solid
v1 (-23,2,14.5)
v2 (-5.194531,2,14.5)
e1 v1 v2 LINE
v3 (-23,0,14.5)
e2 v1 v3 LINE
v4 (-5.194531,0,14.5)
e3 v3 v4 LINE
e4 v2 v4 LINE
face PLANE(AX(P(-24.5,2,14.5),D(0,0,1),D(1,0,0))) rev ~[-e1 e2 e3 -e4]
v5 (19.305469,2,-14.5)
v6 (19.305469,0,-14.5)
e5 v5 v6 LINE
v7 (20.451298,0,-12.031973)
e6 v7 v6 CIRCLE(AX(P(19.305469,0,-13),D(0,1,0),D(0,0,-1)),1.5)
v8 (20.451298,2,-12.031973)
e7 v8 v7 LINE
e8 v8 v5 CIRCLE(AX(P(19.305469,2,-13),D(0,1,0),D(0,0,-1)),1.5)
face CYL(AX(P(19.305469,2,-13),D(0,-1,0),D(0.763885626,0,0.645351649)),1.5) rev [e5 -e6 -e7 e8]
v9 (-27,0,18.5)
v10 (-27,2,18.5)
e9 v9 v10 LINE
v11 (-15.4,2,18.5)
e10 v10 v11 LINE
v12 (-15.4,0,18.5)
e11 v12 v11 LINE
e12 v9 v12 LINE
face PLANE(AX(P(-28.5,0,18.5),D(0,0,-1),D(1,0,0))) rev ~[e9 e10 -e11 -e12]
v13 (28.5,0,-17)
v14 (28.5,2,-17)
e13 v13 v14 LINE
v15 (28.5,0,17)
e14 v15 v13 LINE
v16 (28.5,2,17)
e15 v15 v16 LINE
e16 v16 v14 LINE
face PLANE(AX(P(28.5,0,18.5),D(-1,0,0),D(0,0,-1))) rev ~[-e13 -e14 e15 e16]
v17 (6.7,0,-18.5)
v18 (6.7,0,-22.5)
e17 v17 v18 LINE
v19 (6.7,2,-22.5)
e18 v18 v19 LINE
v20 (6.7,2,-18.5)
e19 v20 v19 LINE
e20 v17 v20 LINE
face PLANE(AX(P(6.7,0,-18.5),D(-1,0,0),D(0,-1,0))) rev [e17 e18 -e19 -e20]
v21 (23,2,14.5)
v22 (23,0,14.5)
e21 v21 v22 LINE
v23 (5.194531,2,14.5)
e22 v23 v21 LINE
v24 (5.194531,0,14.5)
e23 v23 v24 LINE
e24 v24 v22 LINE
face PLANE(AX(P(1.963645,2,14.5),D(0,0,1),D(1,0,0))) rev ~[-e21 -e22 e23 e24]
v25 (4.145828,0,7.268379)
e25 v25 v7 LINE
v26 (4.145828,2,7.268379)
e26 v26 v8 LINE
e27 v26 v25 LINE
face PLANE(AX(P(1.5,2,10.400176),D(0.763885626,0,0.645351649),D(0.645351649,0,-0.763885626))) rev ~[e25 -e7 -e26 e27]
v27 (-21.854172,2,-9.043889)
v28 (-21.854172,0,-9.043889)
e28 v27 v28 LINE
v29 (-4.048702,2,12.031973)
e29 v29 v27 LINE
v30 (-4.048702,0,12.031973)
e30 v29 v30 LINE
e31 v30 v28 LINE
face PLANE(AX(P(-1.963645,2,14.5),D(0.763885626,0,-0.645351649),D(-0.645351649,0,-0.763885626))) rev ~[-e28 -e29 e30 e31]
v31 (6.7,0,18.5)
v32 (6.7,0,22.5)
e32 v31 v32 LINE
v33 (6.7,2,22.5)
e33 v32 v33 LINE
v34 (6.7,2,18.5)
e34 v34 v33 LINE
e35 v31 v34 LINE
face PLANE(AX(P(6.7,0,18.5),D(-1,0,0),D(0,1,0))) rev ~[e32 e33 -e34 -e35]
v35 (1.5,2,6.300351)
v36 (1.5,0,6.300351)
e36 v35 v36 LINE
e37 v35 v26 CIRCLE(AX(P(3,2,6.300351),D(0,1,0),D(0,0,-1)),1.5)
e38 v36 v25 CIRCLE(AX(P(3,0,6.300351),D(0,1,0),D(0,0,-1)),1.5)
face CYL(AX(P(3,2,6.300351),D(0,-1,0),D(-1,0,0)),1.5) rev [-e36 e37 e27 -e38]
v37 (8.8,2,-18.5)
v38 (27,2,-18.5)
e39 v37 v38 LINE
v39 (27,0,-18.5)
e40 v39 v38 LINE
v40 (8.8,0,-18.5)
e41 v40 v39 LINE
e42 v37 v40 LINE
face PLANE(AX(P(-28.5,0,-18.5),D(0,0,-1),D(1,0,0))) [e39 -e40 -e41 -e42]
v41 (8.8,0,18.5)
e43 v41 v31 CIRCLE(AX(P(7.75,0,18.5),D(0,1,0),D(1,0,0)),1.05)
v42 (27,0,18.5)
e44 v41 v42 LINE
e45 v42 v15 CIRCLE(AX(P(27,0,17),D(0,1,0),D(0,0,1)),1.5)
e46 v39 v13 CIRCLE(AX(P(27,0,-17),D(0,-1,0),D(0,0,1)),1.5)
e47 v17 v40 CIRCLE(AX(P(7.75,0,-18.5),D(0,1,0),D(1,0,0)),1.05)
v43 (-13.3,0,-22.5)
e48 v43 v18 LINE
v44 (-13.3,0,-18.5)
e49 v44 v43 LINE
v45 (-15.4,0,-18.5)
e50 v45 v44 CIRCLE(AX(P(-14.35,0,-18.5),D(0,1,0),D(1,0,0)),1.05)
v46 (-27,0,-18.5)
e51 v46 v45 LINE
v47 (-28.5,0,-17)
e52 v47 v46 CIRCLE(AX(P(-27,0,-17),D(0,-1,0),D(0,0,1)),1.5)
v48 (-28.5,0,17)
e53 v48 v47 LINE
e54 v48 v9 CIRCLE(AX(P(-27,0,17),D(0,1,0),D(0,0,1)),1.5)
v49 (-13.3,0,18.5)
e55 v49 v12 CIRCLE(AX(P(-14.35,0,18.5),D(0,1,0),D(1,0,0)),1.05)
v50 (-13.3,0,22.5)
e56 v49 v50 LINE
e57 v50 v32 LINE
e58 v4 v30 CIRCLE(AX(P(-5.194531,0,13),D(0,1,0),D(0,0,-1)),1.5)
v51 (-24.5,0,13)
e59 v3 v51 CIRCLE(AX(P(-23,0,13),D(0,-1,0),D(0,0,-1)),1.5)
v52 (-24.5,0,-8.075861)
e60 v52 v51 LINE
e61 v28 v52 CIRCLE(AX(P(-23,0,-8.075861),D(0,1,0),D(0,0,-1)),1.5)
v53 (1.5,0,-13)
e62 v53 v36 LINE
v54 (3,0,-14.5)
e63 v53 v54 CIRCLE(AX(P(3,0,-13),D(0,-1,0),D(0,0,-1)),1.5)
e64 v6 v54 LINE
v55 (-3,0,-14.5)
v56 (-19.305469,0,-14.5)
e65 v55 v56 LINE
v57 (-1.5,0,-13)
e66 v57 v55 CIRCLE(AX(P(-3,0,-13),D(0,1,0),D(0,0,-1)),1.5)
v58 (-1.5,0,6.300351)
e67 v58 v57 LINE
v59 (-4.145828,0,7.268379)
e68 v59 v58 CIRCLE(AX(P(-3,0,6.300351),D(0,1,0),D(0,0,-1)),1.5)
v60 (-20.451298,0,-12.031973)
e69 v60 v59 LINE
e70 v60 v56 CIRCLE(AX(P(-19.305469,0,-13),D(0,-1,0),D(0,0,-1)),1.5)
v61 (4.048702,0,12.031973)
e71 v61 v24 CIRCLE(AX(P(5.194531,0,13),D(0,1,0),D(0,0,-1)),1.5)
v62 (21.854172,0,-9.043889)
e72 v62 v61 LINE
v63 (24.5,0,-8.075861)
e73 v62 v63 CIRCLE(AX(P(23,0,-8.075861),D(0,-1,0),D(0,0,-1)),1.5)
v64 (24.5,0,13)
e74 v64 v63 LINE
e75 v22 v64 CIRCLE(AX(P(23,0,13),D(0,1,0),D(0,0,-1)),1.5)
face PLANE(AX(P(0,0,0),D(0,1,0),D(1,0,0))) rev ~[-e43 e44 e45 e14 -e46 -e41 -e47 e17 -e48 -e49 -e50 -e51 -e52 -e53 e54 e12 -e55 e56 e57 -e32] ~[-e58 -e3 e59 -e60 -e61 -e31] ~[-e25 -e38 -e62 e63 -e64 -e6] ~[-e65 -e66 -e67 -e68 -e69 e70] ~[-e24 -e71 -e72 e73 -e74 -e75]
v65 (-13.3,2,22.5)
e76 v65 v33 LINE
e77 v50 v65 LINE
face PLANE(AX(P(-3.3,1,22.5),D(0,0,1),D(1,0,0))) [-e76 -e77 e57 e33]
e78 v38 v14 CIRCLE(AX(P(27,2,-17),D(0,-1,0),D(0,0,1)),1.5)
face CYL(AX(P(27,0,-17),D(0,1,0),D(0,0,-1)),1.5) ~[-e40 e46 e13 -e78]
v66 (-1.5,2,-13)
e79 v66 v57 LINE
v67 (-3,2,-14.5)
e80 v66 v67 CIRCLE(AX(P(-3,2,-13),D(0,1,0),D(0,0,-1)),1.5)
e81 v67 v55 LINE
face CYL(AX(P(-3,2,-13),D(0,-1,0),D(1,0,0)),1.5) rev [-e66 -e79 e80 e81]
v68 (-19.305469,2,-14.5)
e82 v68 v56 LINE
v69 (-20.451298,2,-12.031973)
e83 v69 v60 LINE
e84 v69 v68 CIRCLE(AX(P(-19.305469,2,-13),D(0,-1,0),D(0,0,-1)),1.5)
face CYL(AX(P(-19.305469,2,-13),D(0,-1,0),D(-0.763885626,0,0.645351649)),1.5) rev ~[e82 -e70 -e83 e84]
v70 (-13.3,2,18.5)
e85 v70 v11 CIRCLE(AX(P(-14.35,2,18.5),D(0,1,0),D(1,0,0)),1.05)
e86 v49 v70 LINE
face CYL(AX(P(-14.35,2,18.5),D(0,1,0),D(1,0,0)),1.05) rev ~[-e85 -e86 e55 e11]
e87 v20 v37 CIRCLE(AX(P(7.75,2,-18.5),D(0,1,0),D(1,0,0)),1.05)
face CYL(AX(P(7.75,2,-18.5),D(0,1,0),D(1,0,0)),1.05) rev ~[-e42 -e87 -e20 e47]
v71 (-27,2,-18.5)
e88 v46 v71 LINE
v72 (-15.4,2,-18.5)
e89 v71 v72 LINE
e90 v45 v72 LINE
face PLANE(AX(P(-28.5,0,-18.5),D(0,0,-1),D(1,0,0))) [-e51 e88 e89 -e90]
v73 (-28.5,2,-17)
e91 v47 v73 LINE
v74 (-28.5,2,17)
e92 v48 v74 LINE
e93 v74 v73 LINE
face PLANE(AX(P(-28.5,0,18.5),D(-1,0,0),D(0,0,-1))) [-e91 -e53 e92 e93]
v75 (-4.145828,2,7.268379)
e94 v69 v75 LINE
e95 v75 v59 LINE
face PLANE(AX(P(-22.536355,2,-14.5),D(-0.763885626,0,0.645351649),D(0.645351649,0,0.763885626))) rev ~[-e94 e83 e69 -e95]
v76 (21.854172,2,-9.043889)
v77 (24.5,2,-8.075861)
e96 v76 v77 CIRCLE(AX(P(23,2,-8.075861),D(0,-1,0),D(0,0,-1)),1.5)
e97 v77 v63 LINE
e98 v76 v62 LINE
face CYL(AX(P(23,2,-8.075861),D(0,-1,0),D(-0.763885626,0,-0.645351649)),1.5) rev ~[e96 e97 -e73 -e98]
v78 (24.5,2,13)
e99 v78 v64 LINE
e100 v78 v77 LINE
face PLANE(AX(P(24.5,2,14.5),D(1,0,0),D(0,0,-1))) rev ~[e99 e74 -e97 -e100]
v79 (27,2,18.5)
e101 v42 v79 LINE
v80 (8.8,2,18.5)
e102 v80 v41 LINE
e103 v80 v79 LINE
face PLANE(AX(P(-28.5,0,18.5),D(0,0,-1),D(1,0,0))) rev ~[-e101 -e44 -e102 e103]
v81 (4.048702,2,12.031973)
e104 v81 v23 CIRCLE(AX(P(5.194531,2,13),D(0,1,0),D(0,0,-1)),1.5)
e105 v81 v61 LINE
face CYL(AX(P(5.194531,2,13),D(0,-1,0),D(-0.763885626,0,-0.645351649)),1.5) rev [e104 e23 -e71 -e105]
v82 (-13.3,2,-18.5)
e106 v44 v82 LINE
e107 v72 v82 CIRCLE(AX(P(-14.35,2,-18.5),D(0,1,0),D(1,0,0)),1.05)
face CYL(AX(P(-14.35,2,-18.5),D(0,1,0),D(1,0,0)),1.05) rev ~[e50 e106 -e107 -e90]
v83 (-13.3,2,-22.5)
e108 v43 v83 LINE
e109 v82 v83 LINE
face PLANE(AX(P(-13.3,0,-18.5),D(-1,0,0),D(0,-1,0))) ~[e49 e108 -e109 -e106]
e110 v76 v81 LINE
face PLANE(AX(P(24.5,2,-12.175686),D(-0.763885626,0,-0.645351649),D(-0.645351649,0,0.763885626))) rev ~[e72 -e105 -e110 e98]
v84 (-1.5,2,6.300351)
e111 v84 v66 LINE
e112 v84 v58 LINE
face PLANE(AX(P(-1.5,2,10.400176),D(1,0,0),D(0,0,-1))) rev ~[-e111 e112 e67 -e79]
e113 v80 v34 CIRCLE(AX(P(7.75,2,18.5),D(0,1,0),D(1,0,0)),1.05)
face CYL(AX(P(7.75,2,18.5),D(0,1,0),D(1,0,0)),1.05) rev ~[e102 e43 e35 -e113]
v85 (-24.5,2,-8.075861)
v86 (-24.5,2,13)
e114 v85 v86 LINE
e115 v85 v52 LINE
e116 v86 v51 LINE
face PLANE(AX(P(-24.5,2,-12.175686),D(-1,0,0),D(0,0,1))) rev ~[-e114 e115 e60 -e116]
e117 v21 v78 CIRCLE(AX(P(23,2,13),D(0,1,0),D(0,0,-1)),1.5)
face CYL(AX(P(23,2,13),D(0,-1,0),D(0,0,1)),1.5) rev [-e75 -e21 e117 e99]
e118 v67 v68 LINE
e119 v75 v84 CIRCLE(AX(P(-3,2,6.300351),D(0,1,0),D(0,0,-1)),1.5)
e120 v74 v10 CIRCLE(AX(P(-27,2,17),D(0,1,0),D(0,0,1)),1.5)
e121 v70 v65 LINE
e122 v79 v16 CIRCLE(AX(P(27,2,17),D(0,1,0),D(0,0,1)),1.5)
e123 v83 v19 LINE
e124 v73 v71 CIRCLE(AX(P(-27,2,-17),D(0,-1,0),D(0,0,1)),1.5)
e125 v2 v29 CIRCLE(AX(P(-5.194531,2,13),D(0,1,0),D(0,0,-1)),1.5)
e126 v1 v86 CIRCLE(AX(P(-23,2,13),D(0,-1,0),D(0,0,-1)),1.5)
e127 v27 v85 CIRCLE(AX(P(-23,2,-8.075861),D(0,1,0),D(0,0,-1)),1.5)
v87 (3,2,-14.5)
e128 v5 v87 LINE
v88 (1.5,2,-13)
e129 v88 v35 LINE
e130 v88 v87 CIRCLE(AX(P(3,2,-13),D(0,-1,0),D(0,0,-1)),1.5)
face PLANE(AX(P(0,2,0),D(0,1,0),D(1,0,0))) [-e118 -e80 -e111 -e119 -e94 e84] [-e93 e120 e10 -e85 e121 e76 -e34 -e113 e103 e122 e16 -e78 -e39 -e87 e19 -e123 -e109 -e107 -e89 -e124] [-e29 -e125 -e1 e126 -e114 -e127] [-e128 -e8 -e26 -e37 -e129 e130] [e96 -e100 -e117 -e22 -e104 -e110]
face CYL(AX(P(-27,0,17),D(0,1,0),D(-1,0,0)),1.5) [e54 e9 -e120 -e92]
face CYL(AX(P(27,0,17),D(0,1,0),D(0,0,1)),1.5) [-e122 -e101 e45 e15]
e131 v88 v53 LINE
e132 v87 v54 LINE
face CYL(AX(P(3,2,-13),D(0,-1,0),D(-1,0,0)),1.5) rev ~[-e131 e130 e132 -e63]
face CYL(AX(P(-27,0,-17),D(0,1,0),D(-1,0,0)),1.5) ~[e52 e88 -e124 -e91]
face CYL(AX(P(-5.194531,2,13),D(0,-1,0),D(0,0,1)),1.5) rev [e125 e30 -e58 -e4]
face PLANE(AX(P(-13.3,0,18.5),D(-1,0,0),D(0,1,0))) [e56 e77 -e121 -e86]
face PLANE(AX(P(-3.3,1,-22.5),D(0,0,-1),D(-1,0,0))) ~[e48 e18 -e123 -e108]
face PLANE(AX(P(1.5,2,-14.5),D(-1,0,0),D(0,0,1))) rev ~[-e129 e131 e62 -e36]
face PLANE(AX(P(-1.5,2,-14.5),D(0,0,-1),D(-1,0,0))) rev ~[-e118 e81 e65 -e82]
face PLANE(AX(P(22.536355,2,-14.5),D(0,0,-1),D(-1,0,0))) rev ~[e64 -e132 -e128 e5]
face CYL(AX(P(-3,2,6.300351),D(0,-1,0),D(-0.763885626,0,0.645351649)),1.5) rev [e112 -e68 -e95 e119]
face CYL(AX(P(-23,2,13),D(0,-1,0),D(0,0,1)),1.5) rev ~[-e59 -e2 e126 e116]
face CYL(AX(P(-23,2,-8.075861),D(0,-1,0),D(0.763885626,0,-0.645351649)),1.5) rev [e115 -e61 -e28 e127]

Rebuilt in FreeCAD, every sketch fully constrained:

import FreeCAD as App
import Part
import Sketcher
from FreeCAD import Vector


def edges_at(feature, points):
    """Names of the edges that pass closest to the given points."""
    edges = feature.Shape.Edges
    near = lambda p: min(range(len(edges)), key=lambda i: edges[i].distToShape(Part.Vertex(*p))[0])
    return sorted({f"Edge{near(p) + 1}" for p in points})


def add_polygon(sketch, points):
    """Adds a closed chain of lines whose ends are joined by coincident constraints."""
    first, n = sketch.GeometryCount, len(points)
    for a, b in zip(points, points[1:] + points[:1]):
        sketch.addGeometry(Part.LineSegment(App.Vector(*a, 0), App.Vector(*b, 0)), False)
    for i in range(n):
        sketch.addConstraint(Sketcher.Constraint("Coincident", first + i, 2, first + (i + 1) % n, 1))

doc = App.newDocument("Part")
body = doc.addObject("PartDesign::Body", "Body")

# Sketch on XZ plane
sketch1 = body.newObject("Sketcher::SketchObject", "Sketch")
sketch1.AttachmentSupport = (doc.getObject("XZ_Plane"), [""])
sketch1.MapMode = "FlatFace"
add_polygon(sketch1, [(-28, -18), (-28, 18), (28, 18), (28, -18)])  # lines 0-3
sketch1.addConstraint(Sketcher.Constraint("Vertical", 0))
sketch1.addConstraint(Sketcher.Constraint("Horizontal", 1))
sketch1.addConstraint(Sketcher.Constraint("Vertical", 2))
sketch1.addConstraint(Sketcher.Constraint("Horizontal", 3))
sketch1.addConstraint(Sketcher.Constraint("Symmetric", 0, 2, 2, 2, -1, 1))
sketch1.addConstraint(Sketcher.Constraint("DistanceX", 1, 1, 1, 2, 57.0))
sketch1.addConstraint(Sketcher.Constraint("DistanceY", 0, 1, 0, 2, 37.0))
pad1 = body.newObject("PartDesign::Pad", "Pad")
pad1.Profile = sketch1
pad1.Length = 2
pad1.Reversed = True

# Sketch on XY plane
sketch2 = body.newObject("Sketcher::SketchObject", "Sketch001")
sketch2.AttachmentSupport = (doc.getObject("XY_Plane"), [""])
sketch2.MapMode = "FlatFace"
sketch2.AttachmentOffset = App.Placement(Vector(0, 0, 18.5), App.Rotation())
add_polygon(sketch2, [(-13.3, 2), (-13.3, 0), (6.7, 0), (6.7, 2)])  # lines 0-3
sketch2.addConstraint(Sketcher.Constraint("Vertical", 0))
sketch2.addConstraint(Sketcher.Constraint("Horizontal", 1))
sketch2.addConstraint(Sketcher.Constraint("Vertical", 2))
sketch2.addConstraint(Sketcher.Constraint("Horizontal", 3))
sketch2.addConstraint(Sketcher.Constraint("PointOnObject", 0, 2, -1))
sketch2.addConstraint(Sketcher.Constraint("DistanceX", 1, 1, 1, 2, 20.0))
sketch2.addConstraint(Sketcher.Constraint("DistanceY", 0, 2, 0, 1, 2.0))
sketch2.addConstraint(Sketcher.Constraint("DistanceX", 0, 2, -1, 1, 13.3))
pad2 = body.newObject("PartDesign::Pad", "Pad001")
pad2.Profile = sketch2
pad2.Length = 4
doc.recompute()

mirrored = body.newObject("PartDesign::Mirrored", "Mirrored")
mirrored.Originals = [pad2]
mirrored.MirrorPlane = (doc.getObject("XY_Plane"), [""])
body.Tip = mirrored

# Sketch on XZ plane
sketch3 = body.newObject("Sketcher::SketchObject", "Sketch002")
sketch3.AttachmentSupport = (doc.getObject("XZ_Plane"), [""])
sketch3.MapMode = "FlatFace"
sketch3.AttachmentOffset = App.Placement(Vector(0, 0, -2), App.Rotation())
sketch3.addGeometry(Part.Circle(Vector(7.8, -18.5, 0), Vector(0, 0, 1), 1.1), False)
sketch3.addGeometry(Part.Circle(Vector(-14.3, -18.5, 0), Vector(0, 0, 1), 1.1), False)
sketch3.addGeometry(Part.Circle(Vector(-14.3, 18.5, 0), Vector(0, 0, 1), 1.1), False)
sketch3.addGeometry(Part.Circle(Vector(7.8, 18.5, 0), Vector(0, 0, 1), 1.1), False)
sketch3.addConstraint(Sketcher.Constraint("Equal", 0, 1))
sketch3.addConstraint(Sketcher.Constraint("Equal", 1, 2))
sketch3.addConstraint(Sketcher.Constraint("Equal", 2, 3))
sketch3.addConstraint(Sketcher.Constraint("Symmetric", 1, 3, 2, 3, -1))
sketch3.addConstraint(Sketcher.Constraint("Symmetric", 0, 3, 3, 3, -1))
sketch3.addConstraint(Sketcher.Constraint("Horizontal", 0, 3, 1, 3))
sketch3.addConstraint(Sketcher.Constraint("Diameter", 0, 2.1))
sketch3.addConstraint(Sketcher.Constraint("DistanceY", 1, 3, 2, 3, 37.0))
sketch3.addConstraint(Sketcher.Constraint("DistanceX", 1, 3, 0, 3, 22.1))
sketch3.addConstraint(Sketcher.Constraint("DistanceX", -1, 1, 0, 3, 7.75))
pocket1 = body.newObject("PartDesign::Pocket", "Pocket")
pocket1.Profile = sketch3
pocket1.Length = 4
pocket1.Reversed = True

# Sketch on XZ plane
sketch4 = body.newObject("Sketcher::SketchObject", "Sketch003")
sketch4.AttachmentSupport = (doc.getObject("XZ_Plane"), [""])
sketch4.MapMode = "FlatFace"
sketch4.AttachmentOffset = App.Placement(Vector(0, 0, -2), App.Rotation())
add_polygon(sketch4, [(-24, 14), (-2, 14), (-24, -12)])  # lines 0-2
add_polygon(sketch4, [(-23, -14), (-2, 10), (-2, -14)])  # lines 3-5
add_polygon(sketch4, [(2, -14), (2, 10), (23, -14)])  # lines 6-8
add_polygon(sketch4, [(24, -12), (2, 14), (24, 14)])  # lines 9-11
sketch4.addConstraint(Sketcher.Constraint("Horizontal", 0))
sketch4.addConstraint(Sketcher.Constraint("Vertical", 2))
sketch4.addConstraint(Sketcher.Constraint("Vertical", 4))
sketch4.addConstraint(Sketcher.Constraint("Horizontal", 5))
sketch4.addConstraint(Sketcher.Constraint("Vertical", 6))
sketch4.addConstraint(Sketcher.Constraint("Horizontal", 8))
sketch4.addConstraint(Sketcher.Constraint("Horizontal", 10))
sketch4.addConstraint(Sketcher.Constraint("Vertical", 11))
sketch4.addConstraint(Sketcher.Constraint("Symmetric", 3, 2, 6, 2, -2))
sketch4.addConstraint(Sketcher.Constraint("Symmetric", 5, 2, 7, 2, -2))
sketch4.addConstraint(Sketcher.Constraint("Symmetric", 0, 2, 9, 2, -2))
sketch4.addConstraint(Sketcher.Constraint("Symmetric", 1, 2, 11, 2, -2))
sketch4.addConstraint(Sketcher.Constraint("Parallel", 1, 3))
sketch4.addConstraint(Sketcher.Constraint("DistanceX", 2, 2, 3, 2, 23.0))
sketch4.addConstraint(Sketcher.Constraint("DistanceY", 4, 2, 0, 2, 29.0))
sketch4.addConstraint(Sketcher.Constraint("DistanceX", 3, 2, 6, 2, 3.0))
sketch4.addConstraint(Sketcher.Constraint("DistanceY", -1, 1, 0, 2, 14.5))
sketch4.addConstraint(Sketcher.Constraint("DistanceX", 0, 2, 7, 2, 24.5))
sketch4.addConstraint(Sketcher.Constraint("DistanceX", 0, 1, 0, 2, 22.536355))
sketch4.addConstraint(Sketcher.Constraint("DistanceY", 2, 1, 2, 2, 26.675686))
pocket2 = body.newObject("PartDesign::Pocket", "Pocket001")
pocket2.Profile = sketch4
pocket2.Length = 10
pocket2.Reversed = True
doc.recompute()

fillet = body.newObject("PartDesign::Fillet", "Fillet")
fillet.Base = (pocket2, edges_at(pocket2, [
    (1.964, 1, 14.5),
    (24.5, 1, -12.176),
    (24.5, 1, 14.5),
    (-24.5, 1, -12.176),
    (-1.964, 1, 14.5),
    (-24.5, 1, 14.5),
    (28.5, 1, 18.5),
    (-28.5, 1, 18.5),
    (-28.5, 1, -18.5),
    (28.5, 1, -18.5),
    (-22.536, 1, -14.5),
    (-1.5, 1, -14.5),
    (-1.5, 1, 10.4),
    (1.5, 1, -14.5),
    (22.536, 1, -14.5),
    (1.5, 1, 10.4),
]))
fillet.Radius = 1.5

doc.recompute()
